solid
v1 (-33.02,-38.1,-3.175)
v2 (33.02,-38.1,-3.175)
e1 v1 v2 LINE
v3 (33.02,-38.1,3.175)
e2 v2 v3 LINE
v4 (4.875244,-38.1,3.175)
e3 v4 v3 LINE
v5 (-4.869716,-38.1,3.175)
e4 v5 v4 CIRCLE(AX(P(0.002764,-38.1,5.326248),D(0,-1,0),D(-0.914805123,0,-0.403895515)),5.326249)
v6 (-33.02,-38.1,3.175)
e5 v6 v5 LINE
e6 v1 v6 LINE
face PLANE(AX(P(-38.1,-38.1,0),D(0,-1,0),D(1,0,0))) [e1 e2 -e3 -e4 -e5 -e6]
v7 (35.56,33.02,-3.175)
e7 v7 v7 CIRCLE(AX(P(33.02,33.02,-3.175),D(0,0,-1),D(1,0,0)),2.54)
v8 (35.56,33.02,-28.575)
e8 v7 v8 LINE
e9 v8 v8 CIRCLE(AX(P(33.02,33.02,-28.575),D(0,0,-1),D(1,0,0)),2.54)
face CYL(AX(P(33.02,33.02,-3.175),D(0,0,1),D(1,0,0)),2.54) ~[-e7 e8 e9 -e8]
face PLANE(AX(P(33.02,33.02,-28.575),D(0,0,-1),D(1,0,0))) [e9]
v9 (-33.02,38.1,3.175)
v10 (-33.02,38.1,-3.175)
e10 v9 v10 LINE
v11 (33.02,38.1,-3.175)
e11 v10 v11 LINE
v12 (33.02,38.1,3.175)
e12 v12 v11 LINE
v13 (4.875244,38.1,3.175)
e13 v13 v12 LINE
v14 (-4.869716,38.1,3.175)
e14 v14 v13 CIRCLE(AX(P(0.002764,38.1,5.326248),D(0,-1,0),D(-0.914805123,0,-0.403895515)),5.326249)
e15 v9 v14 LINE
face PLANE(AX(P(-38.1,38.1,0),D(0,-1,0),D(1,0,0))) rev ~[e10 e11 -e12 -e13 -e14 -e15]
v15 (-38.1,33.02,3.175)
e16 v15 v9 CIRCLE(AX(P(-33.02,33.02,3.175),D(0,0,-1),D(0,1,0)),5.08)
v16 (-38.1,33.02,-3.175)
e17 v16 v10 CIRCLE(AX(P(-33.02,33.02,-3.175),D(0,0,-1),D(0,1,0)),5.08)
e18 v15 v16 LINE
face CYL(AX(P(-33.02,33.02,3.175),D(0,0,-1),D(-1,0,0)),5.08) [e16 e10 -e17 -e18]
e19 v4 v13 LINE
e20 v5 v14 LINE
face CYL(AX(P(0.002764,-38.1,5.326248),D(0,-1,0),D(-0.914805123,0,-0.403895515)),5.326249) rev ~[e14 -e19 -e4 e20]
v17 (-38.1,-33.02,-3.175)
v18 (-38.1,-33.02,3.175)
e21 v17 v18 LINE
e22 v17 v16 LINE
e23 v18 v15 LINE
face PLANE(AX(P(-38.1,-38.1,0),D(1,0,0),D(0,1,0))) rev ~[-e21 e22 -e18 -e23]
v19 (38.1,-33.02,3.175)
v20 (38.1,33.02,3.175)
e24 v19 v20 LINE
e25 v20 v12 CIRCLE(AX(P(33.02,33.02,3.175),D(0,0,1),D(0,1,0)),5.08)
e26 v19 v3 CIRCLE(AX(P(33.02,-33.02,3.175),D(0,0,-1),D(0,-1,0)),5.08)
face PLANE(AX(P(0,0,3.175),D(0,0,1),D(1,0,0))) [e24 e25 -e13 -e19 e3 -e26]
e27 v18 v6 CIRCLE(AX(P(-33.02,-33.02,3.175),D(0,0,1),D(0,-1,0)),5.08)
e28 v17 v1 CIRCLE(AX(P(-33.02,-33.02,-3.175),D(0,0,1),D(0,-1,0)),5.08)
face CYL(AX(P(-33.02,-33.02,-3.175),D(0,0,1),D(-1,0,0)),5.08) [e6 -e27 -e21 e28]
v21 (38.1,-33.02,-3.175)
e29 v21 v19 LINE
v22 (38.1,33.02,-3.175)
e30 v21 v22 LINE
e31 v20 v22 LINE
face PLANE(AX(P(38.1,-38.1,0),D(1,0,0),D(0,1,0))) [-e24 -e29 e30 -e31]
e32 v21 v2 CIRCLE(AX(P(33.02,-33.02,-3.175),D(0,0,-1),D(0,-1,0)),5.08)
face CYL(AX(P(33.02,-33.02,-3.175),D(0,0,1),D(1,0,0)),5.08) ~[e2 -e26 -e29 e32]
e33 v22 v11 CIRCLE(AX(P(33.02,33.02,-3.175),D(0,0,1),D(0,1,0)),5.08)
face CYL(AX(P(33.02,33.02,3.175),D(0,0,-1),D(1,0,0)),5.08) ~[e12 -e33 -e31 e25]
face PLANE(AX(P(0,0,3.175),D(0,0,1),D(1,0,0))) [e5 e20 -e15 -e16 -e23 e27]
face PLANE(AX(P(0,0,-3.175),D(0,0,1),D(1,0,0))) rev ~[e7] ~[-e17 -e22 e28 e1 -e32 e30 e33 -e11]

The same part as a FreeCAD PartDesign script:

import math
import FreeCAD as App
import Part
import Sketcher
from FreeCAD import Vector
Q = App.Units.Quantity


def edges_at(feature, points):
    """Names of the edges that pass closest to the given points."""
    edges = feature.Shape.Edges
    near = lambda p: min(range(len(edges)), key=lambda i: edges[i].distToShape(Part.Vertex(*p))[0])
    return sorted({f"Edge{near(p) + 1}" for p in points})

doc = App.newDocument("Part")
body = doc.addObject("PartDesign::Body", "Body")

sketch1 = body.newObject("Sketcher::SketchObject", "Sketch")
sketch1.AttachmentSupport = (doc.getObject("XY_Plane"), [""])
sketch1.MapMode = "FlatFace"
sketch1.addGeometry([
    Part.LineSegment(Vector(-38.1, 38.1, 0), Vector(-38.1, -38.1, 0)),
    Part.LineSegment(Vector(-38.1, -38.1, 0), Vector(38.1, -38.1, 0)),
    Part.LineSegment(Vector(38.1, -38.1, 0), Vector(38.1, 38.1, 0)),
    Part.LineSegment(Vector(38.1, 38.1, 0), Vector(-38.1, 38.1, 0)),
], False)
sketch1.addConstraint([
    Sketcher.Constraint("Coincident", 0, 2, 1, 1),
    Sketcher.Constraint("Coincident", 1, 2, 2, 1),
    Sketcher.Constraint("Coincident", 2, 2, 3, 1),
    Sketcher.Constraint("Coincident", 3, 2, 0, 1),
    Sketcher.Constraint("Vertical", 0),
    Sketcher.Constraint("Horizontal", 1),
    Sketcher.Constraint("Vertical", 2),
    Sketcher.Constraint("Horizontal", 3),
    Sketcher.Constraint("Symmetric", 0, 2, 2, 2, -1, 1),
    Sketcher.Constraint("Equal", 3, 0),
    Sketcher.Constraint("DistanceX", 1, 1, 1, 2, Q("3 in")),
])
pad1 = body.newObject("PartDesign::Pad", "Pad")
pad1.Profile = sketch1
pad1.Length = Q("0.25 in")
pad1.Midplane = True
doc.recompute()

fillet = body.newObject("PartDesign::Fillet", "Fillet")
fillet.Base = (pad1, edges_at(pad1, [
    (38.1, -38.1, 0),
    (38.1, 38.1, 0),
    (-38.1, 38.1, 0),
    (-38.1, -38.1, 0),
]))
fillet.Radius = Q("0.2 in")

sketch2 = body.newObject("Sketcher::SketchObject", "Sketch001")
sketch2.AttachmentSupport = (doc.getObject("XZ_Plane"), [""])
sketch2.MapMode = "FlatFace"
sketch2.AttachmentOffset = App.Placement(Vector(0, 0, 1.5 * 25.4), App.Rotation())
sketch2.addGeometry([
    Part.LineSegment(Vector(4.875244, 3.175, 0), Vector(-4.869716, 3.175, 0)),
    Part.ArcOfCircle(Part.Circle(Vector(0.002764, 5.326248, 0), Vector(0, 0, 1), 5.326249), math.radians(-156.178067), math.radians(-23.821933)),
], False)
sketch2.addConstraint([
    Sketcher.Constraint("Coincident", 0, 1, 1, 2),
    Sketcher.Constraint("Coincident", 1, 1, 0, 2),
    Sketcher.Constraint("Horizontal", 0),
    Sketcher.Constraint("DistanceY", -1, 1, 0, 1, Q("0.125 in")),
    Sketcher.Constraint("Radius", 1, 5.326249),
    Sketcher.Constraint("DistanceX", 0, 2, 0, 1, 9.74496),
    Sketcher.Constraint("DistanceX", -1, 1, 1, 3, 0.002764),
])
pocket1 = body.newObject("PartDesign::Pocket", "Pocket")
pocket1.Profile = sketch2
pocket1.Type = "ThroughAll"

sketch3 = body.newObject("Sketcher::SketchObject", "Sketch002")
sketch3.AttachmentSupport = (doc.getObject("XY_Plane"), [""])
sketch3.MapMode = "FlatFace"
sketch3.AttachmentOffset = App.Placement(Vector(0, 0, -0.125 * 25.4), App.Rotation())
sketch3.addGeometry(Part.Circle(Vector(33.02, 33.02, 0), Vector(0, 0, 1), 2.54), False)
sketch3.addConstraint([
    Sketcher.Constraint("Diameter", 0, Q("0.2 in")),
    Sketcher.Constraint("DistanceX", -1, 1, 0, 3, Q("1.3 in")),
    Sketcher.Constraint("DistanceY", -1, 1, 0, 3, Q("1.3 in")),
])
pad2 = body.newObject("PartDesign::Pad", "Pad001")
pad2.Profile = sketch3
pad2.Length = Q("1 in")
pad2.Reversed = True

doc.recompute()
